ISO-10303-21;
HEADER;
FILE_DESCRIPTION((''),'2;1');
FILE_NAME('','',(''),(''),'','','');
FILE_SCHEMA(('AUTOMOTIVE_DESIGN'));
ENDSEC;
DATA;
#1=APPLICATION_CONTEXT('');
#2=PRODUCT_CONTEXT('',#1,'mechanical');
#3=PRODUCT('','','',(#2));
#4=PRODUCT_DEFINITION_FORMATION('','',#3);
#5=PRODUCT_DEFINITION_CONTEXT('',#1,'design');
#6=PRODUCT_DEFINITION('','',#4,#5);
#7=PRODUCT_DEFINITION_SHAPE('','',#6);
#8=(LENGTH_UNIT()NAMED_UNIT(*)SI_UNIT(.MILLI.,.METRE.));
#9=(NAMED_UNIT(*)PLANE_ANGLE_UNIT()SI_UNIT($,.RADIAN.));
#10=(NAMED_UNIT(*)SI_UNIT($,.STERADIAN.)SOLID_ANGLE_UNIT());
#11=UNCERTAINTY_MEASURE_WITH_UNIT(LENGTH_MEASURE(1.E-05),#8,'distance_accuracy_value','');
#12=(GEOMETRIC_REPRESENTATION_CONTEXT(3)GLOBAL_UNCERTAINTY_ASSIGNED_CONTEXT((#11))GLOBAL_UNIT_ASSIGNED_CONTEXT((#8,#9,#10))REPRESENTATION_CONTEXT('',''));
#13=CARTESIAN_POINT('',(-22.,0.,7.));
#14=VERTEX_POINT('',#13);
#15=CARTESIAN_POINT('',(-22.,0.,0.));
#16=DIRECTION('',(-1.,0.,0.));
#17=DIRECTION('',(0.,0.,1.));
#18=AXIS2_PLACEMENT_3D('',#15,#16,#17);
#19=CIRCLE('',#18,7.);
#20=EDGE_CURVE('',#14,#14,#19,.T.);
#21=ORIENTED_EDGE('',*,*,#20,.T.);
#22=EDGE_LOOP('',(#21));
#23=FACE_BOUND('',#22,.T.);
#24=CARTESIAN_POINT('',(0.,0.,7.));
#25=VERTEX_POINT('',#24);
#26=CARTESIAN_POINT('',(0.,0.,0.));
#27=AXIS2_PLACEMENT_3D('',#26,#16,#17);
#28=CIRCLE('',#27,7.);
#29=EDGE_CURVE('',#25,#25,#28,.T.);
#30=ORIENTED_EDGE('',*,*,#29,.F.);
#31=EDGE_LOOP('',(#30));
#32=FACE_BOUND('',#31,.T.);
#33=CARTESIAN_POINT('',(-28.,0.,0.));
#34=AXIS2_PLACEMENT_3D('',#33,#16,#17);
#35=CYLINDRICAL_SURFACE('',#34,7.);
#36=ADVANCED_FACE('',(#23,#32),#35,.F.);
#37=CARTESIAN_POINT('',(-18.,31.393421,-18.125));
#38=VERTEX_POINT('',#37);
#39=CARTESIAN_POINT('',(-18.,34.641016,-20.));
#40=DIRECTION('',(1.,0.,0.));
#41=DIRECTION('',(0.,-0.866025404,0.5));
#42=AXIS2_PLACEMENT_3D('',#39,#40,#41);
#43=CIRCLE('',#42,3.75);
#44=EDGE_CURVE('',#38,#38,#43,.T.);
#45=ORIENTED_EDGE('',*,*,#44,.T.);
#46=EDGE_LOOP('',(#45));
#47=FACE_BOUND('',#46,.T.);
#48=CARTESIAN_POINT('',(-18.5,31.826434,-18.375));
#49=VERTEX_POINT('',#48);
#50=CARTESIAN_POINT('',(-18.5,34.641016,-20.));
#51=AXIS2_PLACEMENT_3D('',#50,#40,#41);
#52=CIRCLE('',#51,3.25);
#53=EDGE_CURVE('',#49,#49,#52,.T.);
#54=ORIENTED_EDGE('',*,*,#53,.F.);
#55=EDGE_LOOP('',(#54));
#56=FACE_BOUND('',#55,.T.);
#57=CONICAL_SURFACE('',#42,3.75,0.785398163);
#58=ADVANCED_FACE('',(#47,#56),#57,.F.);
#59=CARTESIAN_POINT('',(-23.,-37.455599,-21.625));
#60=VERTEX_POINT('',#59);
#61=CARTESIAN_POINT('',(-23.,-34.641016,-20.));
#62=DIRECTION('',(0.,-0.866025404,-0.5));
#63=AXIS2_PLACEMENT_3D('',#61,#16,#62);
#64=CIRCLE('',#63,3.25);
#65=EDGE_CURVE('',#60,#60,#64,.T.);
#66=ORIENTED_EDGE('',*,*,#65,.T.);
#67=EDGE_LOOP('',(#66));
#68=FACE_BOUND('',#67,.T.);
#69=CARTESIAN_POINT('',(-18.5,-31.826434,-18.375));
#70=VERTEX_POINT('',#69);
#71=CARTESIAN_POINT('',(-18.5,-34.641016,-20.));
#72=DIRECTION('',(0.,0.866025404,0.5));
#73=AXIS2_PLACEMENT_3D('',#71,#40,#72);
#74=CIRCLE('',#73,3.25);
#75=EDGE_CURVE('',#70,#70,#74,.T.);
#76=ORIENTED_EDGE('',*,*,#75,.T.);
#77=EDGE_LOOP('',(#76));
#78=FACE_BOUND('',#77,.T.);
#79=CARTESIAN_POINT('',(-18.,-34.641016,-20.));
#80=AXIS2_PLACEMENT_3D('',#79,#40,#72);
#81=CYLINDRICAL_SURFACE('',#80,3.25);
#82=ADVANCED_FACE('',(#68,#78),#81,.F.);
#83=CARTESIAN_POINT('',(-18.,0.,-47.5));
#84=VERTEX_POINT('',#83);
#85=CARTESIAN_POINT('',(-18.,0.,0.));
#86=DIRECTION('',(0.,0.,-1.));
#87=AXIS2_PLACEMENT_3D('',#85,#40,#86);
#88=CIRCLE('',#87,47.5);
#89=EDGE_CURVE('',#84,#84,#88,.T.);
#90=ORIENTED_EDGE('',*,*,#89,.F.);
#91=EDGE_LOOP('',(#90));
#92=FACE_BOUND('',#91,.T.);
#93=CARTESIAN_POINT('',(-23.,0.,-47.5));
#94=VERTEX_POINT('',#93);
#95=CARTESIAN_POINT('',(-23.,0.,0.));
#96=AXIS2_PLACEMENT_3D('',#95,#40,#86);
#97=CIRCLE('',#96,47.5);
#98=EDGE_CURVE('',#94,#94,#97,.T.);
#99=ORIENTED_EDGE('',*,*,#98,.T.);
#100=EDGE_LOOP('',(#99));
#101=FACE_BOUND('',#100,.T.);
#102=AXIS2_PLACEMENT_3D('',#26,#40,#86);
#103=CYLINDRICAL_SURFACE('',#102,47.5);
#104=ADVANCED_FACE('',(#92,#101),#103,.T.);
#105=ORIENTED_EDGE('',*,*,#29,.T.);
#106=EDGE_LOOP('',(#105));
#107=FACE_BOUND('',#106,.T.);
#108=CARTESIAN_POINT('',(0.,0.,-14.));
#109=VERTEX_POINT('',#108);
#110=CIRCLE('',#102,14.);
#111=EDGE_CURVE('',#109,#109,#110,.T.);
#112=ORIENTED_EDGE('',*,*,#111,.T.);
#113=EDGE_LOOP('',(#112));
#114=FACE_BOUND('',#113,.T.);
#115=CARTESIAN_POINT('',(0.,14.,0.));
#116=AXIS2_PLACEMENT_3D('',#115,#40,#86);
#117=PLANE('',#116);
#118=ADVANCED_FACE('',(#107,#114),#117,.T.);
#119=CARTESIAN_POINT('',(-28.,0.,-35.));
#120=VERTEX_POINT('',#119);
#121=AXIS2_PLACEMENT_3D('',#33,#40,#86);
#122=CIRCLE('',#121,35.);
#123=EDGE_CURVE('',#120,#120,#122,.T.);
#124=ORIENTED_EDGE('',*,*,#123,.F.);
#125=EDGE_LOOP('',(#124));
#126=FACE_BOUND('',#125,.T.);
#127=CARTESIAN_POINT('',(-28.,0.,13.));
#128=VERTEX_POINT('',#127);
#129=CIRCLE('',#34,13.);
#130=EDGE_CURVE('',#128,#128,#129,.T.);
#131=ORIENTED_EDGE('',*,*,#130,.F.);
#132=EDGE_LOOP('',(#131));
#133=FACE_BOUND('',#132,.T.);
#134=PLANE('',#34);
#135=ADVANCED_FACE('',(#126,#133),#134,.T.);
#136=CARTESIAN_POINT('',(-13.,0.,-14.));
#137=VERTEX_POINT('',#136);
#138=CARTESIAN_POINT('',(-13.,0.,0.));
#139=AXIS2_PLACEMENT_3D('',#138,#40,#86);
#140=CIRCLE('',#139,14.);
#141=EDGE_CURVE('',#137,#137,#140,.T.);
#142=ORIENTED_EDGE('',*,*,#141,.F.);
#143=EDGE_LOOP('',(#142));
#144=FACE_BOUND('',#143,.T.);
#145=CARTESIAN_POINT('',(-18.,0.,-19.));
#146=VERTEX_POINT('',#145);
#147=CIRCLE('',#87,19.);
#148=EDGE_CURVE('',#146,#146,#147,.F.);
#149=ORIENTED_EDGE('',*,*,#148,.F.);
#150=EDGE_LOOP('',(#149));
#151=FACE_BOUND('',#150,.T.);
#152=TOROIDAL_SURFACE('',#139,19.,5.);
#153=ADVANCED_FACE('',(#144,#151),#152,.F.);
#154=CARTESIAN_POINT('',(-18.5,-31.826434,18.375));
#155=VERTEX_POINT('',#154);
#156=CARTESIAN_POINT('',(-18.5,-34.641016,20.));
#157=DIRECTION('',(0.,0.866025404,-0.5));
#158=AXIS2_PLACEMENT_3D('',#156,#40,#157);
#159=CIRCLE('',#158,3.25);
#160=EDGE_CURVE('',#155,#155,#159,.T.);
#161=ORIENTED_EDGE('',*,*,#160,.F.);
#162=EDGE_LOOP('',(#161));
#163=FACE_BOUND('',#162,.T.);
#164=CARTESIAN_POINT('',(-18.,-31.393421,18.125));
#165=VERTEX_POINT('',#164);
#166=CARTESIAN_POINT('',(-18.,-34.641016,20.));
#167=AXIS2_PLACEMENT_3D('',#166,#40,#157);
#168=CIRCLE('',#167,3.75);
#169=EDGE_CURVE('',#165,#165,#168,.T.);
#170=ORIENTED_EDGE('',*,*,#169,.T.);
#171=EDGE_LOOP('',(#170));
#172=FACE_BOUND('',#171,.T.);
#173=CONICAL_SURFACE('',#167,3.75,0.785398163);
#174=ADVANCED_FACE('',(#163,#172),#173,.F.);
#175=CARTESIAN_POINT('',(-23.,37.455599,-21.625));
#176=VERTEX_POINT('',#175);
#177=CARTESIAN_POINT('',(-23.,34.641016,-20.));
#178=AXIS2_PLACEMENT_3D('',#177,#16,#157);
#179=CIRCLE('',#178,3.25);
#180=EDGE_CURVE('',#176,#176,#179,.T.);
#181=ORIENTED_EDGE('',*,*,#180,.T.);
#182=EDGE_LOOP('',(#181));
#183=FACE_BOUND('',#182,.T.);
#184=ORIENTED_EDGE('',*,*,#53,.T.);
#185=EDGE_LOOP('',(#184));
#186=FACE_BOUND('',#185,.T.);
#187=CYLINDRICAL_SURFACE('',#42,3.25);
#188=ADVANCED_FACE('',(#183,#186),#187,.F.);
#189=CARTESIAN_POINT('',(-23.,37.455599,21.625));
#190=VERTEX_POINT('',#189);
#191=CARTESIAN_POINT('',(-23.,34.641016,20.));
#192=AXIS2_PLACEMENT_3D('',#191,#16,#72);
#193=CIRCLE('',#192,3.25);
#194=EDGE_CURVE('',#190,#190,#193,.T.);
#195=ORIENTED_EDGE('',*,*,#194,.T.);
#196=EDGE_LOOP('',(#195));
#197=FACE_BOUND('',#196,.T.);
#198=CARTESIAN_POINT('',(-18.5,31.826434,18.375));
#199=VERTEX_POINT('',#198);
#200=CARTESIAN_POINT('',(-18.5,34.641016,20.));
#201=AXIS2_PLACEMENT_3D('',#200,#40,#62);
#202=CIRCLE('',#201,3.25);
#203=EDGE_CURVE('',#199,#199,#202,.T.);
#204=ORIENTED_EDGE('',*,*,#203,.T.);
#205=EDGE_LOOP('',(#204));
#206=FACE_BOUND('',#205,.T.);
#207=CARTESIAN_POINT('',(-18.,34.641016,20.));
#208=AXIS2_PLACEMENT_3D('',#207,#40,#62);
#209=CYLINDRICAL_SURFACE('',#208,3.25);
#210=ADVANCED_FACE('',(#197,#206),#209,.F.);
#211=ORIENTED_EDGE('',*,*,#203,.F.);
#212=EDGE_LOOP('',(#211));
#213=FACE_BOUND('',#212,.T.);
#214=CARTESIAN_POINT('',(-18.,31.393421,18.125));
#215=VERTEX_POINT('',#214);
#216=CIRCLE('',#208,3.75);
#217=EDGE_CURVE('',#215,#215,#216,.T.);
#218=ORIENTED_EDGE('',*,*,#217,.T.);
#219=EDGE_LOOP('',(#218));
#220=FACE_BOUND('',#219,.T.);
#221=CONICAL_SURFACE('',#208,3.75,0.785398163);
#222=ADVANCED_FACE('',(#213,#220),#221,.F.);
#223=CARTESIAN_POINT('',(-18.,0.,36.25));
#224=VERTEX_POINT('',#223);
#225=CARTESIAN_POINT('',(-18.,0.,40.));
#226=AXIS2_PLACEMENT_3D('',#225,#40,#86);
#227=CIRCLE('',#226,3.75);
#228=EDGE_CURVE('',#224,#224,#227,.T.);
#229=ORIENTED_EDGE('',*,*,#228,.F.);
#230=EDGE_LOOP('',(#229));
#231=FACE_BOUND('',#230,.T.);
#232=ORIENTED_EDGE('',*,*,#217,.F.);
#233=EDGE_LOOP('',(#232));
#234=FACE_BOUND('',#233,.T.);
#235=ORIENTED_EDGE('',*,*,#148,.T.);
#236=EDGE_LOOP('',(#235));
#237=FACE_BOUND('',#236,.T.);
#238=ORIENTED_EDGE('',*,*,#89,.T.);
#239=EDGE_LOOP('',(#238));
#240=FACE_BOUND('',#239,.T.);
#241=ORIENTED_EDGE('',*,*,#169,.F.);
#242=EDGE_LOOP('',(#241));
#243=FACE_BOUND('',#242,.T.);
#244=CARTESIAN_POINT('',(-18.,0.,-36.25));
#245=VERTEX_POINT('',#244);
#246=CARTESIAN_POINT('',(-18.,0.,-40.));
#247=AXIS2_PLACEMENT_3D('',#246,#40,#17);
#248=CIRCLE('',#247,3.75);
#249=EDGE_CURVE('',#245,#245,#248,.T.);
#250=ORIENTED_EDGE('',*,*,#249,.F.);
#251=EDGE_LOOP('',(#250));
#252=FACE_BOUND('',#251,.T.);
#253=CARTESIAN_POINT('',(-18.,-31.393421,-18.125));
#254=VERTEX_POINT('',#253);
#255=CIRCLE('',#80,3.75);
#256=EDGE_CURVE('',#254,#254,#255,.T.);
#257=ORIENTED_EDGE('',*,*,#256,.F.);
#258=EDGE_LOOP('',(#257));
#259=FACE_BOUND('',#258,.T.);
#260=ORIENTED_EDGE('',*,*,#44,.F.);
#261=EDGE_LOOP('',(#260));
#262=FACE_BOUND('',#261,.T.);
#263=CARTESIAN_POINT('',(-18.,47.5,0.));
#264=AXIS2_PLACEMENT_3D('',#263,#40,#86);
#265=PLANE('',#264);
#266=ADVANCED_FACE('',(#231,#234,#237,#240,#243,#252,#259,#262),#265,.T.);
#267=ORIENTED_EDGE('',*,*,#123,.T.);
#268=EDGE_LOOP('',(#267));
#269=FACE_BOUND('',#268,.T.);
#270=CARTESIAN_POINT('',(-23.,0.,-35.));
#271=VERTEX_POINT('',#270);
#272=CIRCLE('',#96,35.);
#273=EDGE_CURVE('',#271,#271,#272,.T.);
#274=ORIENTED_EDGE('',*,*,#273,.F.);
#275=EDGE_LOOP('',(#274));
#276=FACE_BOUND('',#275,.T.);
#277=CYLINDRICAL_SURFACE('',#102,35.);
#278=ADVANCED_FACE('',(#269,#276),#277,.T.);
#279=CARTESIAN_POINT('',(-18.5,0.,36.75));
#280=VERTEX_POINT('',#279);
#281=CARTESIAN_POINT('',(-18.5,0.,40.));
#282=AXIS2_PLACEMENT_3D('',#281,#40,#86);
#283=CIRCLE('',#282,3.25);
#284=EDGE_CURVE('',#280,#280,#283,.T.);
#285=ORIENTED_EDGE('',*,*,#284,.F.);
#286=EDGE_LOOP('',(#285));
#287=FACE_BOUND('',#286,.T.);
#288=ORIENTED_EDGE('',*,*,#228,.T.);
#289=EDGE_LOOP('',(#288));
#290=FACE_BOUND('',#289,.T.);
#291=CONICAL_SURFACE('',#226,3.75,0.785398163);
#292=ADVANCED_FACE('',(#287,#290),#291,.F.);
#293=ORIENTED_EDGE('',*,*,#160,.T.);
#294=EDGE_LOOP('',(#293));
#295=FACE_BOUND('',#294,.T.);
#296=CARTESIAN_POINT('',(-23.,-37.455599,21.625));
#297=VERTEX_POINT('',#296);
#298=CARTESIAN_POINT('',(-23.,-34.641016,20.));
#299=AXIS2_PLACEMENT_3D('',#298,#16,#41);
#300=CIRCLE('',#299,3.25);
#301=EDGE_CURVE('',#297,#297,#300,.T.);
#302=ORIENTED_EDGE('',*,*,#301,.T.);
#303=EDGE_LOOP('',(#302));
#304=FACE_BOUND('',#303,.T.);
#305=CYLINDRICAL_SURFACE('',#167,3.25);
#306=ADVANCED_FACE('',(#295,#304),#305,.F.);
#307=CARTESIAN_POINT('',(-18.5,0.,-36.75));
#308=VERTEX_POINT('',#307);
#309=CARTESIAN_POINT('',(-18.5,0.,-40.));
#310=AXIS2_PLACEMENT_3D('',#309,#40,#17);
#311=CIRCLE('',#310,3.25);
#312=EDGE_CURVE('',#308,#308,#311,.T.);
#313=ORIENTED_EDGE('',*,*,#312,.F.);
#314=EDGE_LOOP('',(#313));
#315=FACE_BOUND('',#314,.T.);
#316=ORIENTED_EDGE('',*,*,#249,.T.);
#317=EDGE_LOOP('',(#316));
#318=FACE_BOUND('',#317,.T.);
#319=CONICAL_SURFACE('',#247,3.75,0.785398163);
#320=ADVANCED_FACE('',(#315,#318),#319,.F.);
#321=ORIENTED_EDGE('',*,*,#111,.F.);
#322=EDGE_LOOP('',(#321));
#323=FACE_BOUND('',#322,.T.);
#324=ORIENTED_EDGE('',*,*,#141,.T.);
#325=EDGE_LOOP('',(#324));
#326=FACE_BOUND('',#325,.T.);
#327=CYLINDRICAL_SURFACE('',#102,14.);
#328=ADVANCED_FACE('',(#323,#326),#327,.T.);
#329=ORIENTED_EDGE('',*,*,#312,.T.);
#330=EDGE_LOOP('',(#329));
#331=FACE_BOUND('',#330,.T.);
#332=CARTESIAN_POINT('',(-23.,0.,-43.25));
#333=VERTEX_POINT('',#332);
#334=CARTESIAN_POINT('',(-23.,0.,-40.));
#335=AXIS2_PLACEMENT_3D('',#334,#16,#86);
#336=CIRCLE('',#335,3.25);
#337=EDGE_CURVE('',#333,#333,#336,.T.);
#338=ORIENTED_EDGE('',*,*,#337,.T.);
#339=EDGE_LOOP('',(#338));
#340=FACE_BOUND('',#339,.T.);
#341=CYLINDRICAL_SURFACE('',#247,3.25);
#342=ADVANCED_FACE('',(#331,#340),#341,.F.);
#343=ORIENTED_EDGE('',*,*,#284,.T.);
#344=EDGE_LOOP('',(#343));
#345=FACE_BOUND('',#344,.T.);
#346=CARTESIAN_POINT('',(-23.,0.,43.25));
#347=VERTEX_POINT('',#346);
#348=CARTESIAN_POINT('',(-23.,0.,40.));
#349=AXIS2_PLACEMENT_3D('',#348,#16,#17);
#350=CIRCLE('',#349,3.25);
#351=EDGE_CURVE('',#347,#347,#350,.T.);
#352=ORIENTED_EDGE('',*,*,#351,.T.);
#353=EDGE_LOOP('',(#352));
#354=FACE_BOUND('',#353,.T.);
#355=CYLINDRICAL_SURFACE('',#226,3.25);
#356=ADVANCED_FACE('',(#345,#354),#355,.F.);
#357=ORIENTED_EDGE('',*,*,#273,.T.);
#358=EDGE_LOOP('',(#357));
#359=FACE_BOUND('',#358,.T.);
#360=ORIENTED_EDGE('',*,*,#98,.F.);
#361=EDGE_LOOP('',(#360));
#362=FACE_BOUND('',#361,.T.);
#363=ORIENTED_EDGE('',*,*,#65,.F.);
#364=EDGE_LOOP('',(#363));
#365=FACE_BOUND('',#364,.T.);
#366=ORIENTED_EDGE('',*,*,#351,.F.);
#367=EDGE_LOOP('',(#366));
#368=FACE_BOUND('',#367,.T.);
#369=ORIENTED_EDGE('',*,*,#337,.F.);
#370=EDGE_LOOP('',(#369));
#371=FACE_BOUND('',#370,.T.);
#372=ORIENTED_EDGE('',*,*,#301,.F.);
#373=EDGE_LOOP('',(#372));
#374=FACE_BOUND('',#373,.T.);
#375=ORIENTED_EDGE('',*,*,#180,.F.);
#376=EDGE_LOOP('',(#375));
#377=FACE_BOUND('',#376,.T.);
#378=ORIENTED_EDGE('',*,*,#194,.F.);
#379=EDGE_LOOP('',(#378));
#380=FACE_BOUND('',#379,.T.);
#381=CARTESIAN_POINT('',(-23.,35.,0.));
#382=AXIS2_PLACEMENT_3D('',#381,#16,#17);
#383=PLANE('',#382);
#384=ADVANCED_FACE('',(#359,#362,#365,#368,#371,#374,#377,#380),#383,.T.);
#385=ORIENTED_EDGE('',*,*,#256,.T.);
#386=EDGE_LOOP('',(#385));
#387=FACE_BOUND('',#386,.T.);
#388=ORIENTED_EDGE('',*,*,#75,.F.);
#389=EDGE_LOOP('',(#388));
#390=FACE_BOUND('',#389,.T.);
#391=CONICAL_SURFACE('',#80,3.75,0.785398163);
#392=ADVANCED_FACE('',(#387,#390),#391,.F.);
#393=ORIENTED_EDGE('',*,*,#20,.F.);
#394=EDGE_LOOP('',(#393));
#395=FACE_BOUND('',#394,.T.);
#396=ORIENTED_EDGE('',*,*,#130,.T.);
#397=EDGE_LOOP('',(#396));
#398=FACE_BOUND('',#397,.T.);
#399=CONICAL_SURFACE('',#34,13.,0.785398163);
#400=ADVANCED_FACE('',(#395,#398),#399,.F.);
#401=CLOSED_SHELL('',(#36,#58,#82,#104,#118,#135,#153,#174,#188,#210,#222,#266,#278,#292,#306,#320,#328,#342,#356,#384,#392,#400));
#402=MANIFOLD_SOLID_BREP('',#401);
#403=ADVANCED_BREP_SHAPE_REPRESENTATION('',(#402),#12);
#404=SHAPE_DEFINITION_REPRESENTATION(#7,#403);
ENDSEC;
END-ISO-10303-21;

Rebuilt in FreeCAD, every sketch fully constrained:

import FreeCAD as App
import Part
import Sketcher


def edges_at(feature, points):
    """Names of the edges that pass closest to the given points."""
    edges = feature.Shape.Edges
    near = lambda p: min(range(len(edges)), key=lambda i: edges[i].distToShape(Part.Vertex(*p))[0])
    return sorted({f"Edge{near(p) + 1}" for p in points})


def add_polygon(sketch, points):
    """Adds a closed chain of lines whose ends are joined by coincident constraints."""
    first, n = sketch.GeometryCount, len(points)
    for a, b in zip(points, points[1:] + points[:1]):
        sketch.addGeometry(Part.LineSegment(App.Vector(*a, 0), App.Vector(*b, 0)), False)
    for i in range(n):
        sketch.addConstraint(Sketcher.Constraint("Coincident", first + i, 2, first + (i + 1) % n, 1))

doc = App.newDocument("Part")
body = doc.addObject("PartDesign::Body", "Body")

sketch1 = body.newObject("Sketcher::SketchObject", "Sketch")
sketch1.AttachmentSupport = (doc.getObject("XY_Plane"), [""])
sketch1.MapMode = "FlatFace"
add_polygon(sketch1, [(-28, 0), (0, 0), (0, 14), (-18, 14), (-18, 47.5), (-23, 47.5), (-23, 35), (-28, 35)])
sketch1.addConstraint(Sketcher.Constraint("Horizontal", 0))
sketch1.addConstraint(Sketcher.Constraint("Vertical", 1))
sketch1.addConstraint(Sketcher.Constraint("Horizontal", 2))
sketch1.addConstraint(Sketcher.Constraint("Vertical", 3))
sketch1.addConstraint(Sketcher.Constraint("Horizontal", 4))
sketch1.addConstraint(Sketcher.Constraint("Vertical", 5))
sketch1.addConstraint(Sketcher.Constraint("Horizontal", 6))
sketch1.addConstraint(Sketcher.Constraint("Vertical", 7))
sketch1.addConstraint(Sketcher.Constraint("Coincident", 0, 2, -1, 1))
sketch1.addConstraint(Sketcher.Constraint("Equal", 4, 6))
sketch1.addConstraint(Sketcher.Constraint("DistanceX", 0, 1, 0, 2, 28.0))
sketch1.addConstraint(Sketcher.Constraint("DistanceX", 2, 2, 2, 1, 18.0))
sketch1.addConstraint(Sketcher.Constraint("DistanceY", 1, 1, 1, 2, 14.0))
sketch1.addConstraint(Sketcher.Constraint("DistanceY", 7, 2, 7, 1, 35.0))
sketch1.addConstraint(Sketcher.Constraint("DistanceY", 3, 1, 3, 2, 33.5))
revolution = body.newObject("PartDesign::Revolution", "Revolution")
revolution.Profile = sketch1
revolution.ReferenceAxis = (sketch1, ["H_Axis"])
revolution.Angle = 360
doc.recompute()

fillet = body.newObject("PartDesign::Fillet", "Fillet")
fillet.Base = (revolution, edges_at(revolution, [(-18, -14, 0)]))
fillet.Radius = 5

sketch2 = body.newObject("Sketcher::SketchObject", "Sketch001")
sketch2.AttachmentSupport = (doc.getObject("YZ_Plane"), [""])
sketch2.MapMode = "FlatFace"
sketch2.AttachmentOffset = App.Placement(App.Vector(0, 0, -28), App.Rotation())
sketch2.addGeometry(Part.Circle(App.Vector(0, 0, 0), App.Vector(0, 0, 1), 7), False)
sketch2.addConstraint(Sketcher.Constraint("Coincident", 0, 3, -1, 1))
sketch2.addConstraint(Sketcher.Constraint("Diameter", 0, 14.0))
doc.recompute()
hole = body.newObject("PartDesign::Hole", "Hole")
hole.Profile = sketch2
hole.ThreadType = "None"
hole.Diameter = 14
hole.DepthType = "ThroughAll"
hole.HoleCutType = "Countersink"
hole.HoleCutDiameter = 26
hole.HoleCutCountersinkAngle = 90
hole.Reversed = True

sketch3 = body.newObject("Sketcher::SketchObject", "Sketch002")
sketch3.AttachmentSupport = (doc.getObject("YZ_Plane"), [""])
sketch3.MapMode = "FlatFace"
sketch3.AttachmentOffset = App.Placement(App.Vector(0, 0, -18), App.Rotation())
sketch3.addGeometry(Part.Circle(App.Vector(0, 40, 0), App.Vector(0, 0, 1), 3.25), False)
sketch3.addConstraint(Sketcher.Constraint("PointOnObject", 0, 3, -2))
sketch3.addConstraint(Sketcher.Constraint("Diameter", 0, 6.5))
sketch3.addConstraint(Sketcher.Constraint("DistanceY", -1, 1, 0, 3, 40.0))
doc.recompute()
hole2 = body.newObject("PartDesign::Hole", "Hole001")
hole2.Profile = sketch3
hole2.ThreadType = "None"
hole2.Diameter = 6.5
hole2.DepthType = "ThroughAll"
hole2.HoleCutType = "Countersink"
hole2.HoleCutDiameter = 7.5
hole2.HoleCutCountersinkAngle = 90
doc.recompute()

polarpattern = body.newObject("PartDesign::PolarPattern", "PolarPattern")
polarpattern.Originals = [hole2]
polarpattern.Axis = (doc.getObject("X_Axis"), [""])
polarpattern.Angle = 360
polarpattern.Occurrences = 6
body.Tip = polarpattern

doc.recompute()
